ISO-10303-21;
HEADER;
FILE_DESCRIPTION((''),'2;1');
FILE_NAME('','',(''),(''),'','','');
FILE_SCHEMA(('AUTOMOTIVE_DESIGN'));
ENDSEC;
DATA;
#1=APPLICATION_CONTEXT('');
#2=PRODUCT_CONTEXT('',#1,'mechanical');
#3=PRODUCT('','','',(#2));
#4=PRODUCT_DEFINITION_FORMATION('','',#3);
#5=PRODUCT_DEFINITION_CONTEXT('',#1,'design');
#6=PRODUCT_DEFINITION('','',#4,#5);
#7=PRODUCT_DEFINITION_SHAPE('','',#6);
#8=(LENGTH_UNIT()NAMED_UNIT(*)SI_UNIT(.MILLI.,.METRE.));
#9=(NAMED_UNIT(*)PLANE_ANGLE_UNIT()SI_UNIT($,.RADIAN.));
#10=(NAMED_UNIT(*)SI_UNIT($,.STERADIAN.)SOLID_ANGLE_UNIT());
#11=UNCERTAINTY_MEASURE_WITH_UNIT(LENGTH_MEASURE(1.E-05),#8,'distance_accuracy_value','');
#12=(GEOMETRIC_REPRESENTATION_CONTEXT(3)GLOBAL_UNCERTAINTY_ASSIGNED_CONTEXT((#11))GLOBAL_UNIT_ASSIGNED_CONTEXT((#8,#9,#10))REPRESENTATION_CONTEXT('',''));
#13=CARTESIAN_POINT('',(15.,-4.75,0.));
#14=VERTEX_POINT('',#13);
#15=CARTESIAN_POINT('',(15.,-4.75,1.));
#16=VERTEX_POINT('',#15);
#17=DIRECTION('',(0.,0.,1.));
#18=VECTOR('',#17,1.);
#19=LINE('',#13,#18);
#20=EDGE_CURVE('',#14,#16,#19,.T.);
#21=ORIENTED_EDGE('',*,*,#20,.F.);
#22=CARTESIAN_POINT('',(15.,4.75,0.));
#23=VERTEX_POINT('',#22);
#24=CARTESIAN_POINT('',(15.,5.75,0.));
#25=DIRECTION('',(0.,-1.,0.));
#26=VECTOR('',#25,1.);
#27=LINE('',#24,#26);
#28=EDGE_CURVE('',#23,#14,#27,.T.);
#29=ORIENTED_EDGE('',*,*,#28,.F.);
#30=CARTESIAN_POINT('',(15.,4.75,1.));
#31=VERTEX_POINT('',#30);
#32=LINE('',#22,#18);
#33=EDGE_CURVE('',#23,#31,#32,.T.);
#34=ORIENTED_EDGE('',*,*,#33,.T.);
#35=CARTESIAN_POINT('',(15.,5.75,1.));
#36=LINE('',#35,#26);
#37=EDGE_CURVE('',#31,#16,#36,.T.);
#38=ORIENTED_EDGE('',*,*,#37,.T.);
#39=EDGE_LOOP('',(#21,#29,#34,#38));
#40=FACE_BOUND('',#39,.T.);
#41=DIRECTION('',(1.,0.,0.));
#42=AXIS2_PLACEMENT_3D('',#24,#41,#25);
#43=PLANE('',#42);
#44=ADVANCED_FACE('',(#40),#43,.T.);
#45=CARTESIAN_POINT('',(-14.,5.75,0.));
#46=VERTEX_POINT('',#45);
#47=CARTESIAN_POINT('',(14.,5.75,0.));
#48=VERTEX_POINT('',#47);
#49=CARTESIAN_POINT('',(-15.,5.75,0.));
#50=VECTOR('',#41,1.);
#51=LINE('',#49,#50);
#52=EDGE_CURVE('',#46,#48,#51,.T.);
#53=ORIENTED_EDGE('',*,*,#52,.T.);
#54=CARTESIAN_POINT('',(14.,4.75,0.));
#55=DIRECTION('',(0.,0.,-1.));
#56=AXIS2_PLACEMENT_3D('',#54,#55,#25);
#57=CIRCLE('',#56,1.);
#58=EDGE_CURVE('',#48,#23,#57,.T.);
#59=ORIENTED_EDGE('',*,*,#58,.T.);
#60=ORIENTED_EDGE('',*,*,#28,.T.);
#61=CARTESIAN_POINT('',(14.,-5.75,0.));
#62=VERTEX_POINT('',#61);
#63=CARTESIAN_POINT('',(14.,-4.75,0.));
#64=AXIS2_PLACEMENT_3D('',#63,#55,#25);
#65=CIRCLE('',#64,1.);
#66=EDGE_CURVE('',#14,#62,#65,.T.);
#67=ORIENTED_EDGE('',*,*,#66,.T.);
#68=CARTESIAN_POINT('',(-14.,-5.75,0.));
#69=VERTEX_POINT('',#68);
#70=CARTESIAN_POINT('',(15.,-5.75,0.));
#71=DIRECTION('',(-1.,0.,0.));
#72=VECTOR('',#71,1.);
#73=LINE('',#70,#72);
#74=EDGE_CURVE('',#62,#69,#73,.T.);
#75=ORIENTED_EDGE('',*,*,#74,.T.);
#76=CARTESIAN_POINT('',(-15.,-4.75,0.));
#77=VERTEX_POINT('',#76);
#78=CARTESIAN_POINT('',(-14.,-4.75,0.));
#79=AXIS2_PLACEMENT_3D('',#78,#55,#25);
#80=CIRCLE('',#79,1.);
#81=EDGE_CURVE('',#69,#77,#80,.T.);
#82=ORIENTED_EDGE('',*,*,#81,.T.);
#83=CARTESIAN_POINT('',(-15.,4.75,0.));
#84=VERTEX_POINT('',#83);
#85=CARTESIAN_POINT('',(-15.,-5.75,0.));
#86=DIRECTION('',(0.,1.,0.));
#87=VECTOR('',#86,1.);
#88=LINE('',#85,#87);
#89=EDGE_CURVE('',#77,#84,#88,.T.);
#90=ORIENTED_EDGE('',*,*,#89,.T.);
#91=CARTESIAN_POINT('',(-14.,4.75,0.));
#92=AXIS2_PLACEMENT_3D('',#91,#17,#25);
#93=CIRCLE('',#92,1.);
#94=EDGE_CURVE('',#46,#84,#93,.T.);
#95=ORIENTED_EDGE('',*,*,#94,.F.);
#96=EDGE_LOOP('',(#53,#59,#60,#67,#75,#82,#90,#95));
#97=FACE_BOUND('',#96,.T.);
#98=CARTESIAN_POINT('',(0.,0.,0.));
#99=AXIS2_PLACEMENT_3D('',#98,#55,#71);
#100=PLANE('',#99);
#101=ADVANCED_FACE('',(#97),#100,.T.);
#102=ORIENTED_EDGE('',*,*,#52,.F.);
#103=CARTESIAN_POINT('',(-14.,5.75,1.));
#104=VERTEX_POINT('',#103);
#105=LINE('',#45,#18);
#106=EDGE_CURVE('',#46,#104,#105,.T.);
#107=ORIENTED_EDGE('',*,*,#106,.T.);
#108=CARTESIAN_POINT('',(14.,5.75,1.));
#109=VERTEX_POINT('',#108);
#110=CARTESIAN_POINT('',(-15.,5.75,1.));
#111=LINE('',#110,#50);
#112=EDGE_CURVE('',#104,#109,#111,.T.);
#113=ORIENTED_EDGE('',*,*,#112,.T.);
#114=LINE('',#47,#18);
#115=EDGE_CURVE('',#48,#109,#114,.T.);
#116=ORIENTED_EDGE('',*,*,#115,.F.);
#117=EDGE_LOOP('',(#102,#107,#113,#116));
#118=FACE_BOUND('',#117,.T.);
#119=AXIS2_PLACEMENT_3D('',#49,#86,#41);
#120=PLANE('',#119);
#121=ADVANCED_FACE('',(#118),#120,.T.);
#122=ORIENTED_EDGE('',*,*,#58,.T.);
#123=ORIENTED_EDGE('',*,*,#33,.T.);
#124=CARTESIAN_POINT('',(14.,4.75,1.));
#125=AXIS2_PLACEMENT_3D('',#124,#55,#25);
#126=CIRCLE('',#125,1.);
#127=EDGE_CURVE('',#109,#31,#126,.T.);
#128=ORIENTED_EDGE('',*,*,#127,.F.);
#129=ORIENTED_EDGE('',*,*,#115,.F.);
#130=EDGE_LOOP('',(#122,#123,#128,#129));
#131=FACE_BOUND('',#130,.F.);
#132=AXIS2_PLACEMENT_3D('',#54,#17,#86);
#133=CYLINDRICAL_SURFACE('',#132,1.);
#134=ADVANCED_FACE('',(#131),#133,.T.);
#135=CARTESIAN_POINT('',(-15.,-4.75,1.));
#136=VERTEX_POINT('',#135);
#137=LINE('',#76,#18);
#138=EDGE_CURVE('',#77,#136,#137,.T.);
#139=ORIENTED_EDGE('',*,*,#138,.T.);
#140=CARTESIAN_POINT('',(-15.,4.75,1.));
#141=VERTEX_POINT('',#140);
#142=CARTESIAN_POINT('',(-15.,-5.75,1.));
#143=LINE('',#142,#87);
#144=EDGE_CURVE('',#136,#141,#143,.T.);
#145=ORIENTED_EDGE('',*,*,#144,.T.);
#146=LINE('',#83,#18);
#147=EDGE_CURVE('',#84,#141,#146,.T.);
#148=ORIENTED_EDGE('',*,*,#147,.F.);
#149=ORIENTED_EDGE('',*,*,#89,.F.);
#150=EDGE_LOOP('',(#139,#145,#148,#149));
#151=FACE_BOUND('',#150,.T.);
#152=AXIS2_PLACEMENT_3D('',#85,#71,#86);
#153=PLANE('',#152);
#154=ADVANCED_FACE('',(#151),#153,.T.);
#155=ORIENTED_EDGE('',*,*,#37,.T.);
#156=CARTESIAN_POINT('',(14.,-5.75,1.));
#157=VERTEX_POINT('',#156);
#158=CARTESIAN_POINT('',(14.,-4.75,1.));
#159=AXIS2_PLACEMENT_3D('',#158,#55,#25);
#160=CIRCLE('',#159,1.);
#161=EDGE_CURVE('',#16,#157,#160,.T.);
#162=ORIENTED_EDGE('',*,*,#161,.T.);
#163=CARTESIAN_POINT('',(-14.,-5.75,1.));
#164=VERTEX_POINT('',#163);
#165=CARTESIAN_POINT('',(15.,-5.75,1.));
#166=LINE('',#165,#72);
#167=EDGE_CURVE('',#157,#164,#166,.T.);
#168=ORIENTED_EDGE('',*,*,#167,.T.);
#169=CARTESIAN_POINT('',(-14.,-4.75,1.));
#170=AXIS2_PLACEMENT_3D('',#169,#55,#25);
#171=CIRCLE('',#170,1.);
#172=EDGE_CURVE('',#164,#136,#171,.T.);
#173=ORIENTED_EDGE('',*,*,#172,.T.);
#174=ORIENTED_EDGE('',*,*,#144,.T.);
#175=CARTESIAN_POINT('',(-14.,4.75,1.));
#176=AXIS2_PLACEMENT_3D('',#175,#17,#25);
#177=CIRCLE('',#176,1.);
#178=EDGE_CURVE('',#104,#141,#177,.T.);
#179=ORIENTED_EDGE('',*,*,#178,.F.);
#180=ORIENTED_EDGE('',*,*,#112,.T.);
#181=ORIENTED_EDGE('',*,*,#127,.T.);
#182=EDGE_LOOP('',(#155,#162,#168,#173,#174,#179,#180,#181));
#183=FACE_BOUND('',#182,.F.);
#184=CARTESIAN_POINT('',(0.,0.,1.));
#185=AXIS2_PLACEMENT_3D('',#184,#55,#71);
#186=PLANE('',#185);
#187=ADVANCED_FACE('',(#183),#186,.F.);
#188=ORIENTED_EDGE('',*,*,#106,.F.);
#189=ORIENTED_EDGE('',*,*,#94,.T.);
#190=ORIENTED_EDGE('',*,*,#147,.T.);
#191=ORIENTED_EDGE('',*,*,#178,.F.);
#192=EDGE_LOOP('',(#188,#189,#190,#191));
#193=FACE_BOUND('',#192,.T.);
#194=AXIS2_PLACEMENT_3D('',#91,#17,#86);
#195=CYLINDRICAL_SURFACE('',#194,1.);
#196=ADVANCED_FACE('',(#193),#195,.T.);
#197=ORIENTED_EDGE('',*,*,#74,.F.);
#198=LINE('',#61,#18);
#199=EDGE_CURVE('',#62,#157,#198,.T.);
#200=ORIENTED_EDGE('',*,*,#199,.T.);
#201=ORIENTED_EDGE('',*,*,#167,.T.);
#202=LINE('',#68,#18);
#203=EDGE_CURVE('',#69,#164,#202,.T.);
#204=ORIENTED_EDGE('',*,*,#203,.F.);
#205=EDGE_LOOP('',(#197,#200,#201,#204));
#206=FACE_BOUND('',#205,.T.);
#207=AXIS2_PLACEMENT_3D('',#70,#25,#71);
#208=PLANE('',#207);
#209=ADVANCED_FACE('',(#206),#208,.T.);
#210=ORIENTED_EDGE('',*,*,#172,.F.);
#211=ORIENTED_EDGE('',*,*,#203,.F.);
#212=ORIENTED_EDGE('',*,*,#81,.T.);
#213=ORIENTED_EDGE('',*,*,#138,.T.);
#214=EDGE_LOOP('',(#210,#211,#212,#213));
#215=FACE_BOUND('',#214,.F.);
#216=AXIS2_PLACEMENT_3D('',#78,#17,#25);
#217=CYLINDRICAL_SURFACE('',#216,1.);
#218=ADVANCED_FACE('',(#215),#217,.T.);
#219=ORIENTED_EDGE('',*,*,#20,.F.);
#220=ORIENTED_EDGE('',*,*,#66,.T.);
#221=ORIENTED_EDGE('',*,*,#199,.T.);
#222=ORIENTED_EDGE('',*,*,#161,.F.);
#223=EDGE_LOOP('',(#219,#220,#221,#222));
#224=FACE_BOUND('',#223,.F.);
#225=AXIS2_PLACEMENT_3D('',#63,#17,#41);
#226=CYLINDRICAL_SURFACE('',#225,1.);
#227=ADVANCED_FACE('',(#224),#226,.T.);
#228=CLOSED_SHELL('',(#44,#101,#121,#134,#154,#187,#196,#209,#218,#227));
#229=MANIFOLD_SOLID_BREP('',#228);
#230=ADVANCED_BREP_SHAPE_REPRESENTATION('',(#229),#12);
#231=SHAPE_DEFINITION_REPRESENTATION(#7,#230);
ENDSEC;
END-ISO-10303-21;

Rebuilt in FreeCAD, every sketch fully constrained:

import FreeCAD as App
import Part
import Sketcher
from FreeCAD import Vector


def edges_at(feature, points):
    """Names of the edges that pass closest to the given points."""
    edges = feature.Shape.Edges
    near = lambda p: min(range(len(edges)), key=lambda i: edges[i].distToShape(Part.Vertex(*p))[0])
    return sorted({f"Edge{near(p) + 1}" for p in points})


def add_polygon(sketch, points):
    """Adds a closed chain of lines whose ends are joined by coincident constraints."""
    first, n = sketch.GeometryCount, len(points)
    for a, b in zip(points, points[1:] + points[:1]):
        sketch.addGeometry(Part.LineSegment(App.Vector(*a, 0), App.Vector(*b, 0)), False)
    for i in range(n):
        sketch.addConstraint(Sketcher.Constraint("Coincident", first + i, 2, first + (i + 1) % n, 1))

doc = App.newDocument("Part")
body = doc.addObject("PartDesign::Body", "Body")

sketch1 = body.newObject("Sketcher::SketchObject", "Sketch")
sketch1.AttachmentSupport = (doc.getObject("XY_Plane"), [""])
sketch1.MapMode = "FlatFace"
add_polygon(sketch1, [(15, 6), (-15, 6), (-15, -6), (15, -6)])
sketch1.addConstraint([
    Sketcher.Constraint("Horizontal", 0),
    Sketcher.Constraint("Vertical", 1),
    Sketcher.Constraint("Horizontal", 2),
    Sketcher.Constraint("Vertical", 3),
    Sketcher.Constraint("Symmetric", 0, 2, 2, 2, -1, 1),
    Sketcher.Constraint("DistanceX", 0, 2, -1, 1, 15.0),
    Sketcher.Constraint("DistanceY", 1, 2, 1, 1, 11.5),
])
pad1 = body.newObject("PartDesign::Pad", "Pad")
pad1.Profile = sketch1
pad1.Length = 1
doc.recompute()

fillet = body.newObject("PartDesign::Fillet", "Fillet")
fillet.Base = (pad1, edges_at(pad1, [
    (-15, -5.75, 0.5),
    (15, -5.75, 0.5),
    (15, 5.75, 0.5),
    (-15, 5.75, 0.5),
]))
fillet.Radius = 1

doc.recompute()
